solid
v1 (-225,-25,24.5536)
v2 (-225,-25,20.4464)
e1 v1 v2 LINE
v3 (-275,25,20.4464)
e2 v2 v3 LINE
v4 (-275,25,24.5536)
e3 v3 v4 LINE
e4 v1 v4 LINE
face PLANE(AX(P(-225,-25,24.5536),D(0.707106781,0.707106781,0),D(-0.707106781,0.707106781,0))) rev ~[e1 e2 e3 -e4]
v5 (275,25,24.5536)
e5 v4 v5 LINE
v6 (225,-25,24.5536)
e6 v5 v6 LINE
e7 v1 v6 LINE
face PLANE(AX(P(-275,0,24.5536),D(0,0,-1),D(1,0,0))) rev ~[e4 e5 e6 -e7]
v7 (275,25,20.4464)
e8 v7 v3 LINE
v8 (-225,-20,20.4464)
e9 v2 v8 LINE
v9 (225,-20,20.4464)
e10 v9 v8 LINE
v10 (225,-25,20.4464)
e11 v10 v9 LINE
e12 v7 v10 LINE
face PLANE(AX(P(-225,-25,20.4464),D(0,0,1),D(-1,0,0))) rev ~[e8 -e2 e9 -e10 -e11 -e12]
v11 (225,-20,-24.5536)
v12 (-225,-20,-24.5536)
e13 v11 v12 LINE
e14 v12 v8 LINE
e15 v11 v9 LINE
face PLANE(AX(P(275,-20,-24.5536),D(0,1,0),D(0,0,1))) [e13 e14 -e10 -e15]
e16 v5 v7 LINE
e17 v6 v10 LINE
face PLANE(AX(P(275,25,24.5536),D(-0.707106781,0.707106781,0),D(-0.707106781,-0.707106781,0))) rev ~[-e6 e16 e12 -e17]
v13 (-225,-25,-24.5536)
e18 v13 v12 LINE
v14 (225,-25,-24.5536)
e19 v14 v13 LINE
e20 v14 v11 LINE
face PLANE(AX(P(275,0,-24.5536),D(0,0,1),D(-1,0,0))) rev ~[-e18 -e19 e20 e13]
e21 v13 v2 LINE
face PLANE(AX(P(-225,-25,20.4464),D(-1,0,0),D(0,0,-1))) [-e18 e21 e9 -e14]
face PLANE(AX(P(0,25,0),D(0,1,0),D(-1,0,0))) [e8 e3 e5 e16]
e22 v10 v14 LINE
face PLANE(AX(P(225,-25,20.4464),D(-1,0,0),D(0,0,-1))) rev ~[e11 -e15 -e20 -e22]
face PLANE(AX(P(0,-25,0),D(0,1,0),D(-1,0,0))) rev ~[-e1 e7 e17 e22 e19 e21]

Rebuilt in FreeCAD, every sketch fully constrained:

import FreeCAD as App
import Part
import Sketcher
Q = App.Units.Quantity


def add_polygon(sketch, points):
    """Adds a closed chain of lines whose ends are joined by coincident constraints."""
    first, n = sketch.GeometryCount, len(points)
    for a, b in zip(points, points[1:] + points[:1]):
        sketch.addGeometry(Part.LineSegment(App.Vector(*a, 0), App.Vector(*b, 0)), False)
    for i in range(n):
        sketch.addConstraint(Sketcher.Constraint("Coincident", first + i, 2, first + (i + 1) % n, 1))

doc = App.newDocument("Part")
body = doc.addObject("PartDesign::Body", "Body")

# Sketch on XZ plane
sketch1 = body.newObject("Sketcher::SketchObject", "Sketch")
sketch1.AttachmentSupport = (doc.getObject("XZ_Plane"), [""])
sketch1.MapMode = "FlatFace"
add_polygon(sketch1, [(-275, -25), (-275, 25), (275, 25), (275, -25)])  # lines 0-3
sketch1.addConstraint([
    Sketcher.Constraint("Vertical", 0),
    Sketcher.Constraint("Horizontal", 1),
    Sketcher.Constraint("Vertical", 2),
    Sketcher.Constraint("Horizontal", 3),
    Sketcher.Constraint("Symmetric", 0, 2, 2, 2, -1, 1),
    Sketcher.Constraint("DistanceX", 1, 1, 1, 2, Q("550 mm")),
    Sketcher.Constraint("DistanceY", 0, 1, 0, 2, Q("49.1072 mm")),
])
pad1 = body.newObject("PartDesign::Pad", "Pad")
pad1.Profile = sketch1
pad1.Length = 50
pad1.Midplane = True

# Sketch on YZ plane
sketch2 = body.newObject("Sketcher::SketchObject", "Sketch001")
sketch2.AttachmentSupport = (doc.getObject("YZ_Plane"), [""])
sketch2.MapMode = "FlatFace"
sketch2.AttachmentOffset = App.Placement(App.Vector(0, 0, 275), App.Rotation())
add_polygon(sketch2, [(-20, 20), (-20, -25), (25, -25), (25, 20)])  # lines 0-3
sketch2.addConstraint([
    Sketcher.Constraint("Vertical", 0),
    Sketcher.Constraint("Horizontal", 1),
    Sketcher.Constraint("Vertical", 2),
    Sketcher.Constraint("Horizontal", 3),
    Sketcher.Constraint("Equal", 3, 0),
    Sketcher.Constraint("DistanceX", 1, 1, 1, 2, Q("45 mm")),
    Sketcher.Constraint("DistanceX", 0, 2, -1, 1, Q("20 mm")),
    Sketcher.Constraint("DistanceY", 0, 2, -1, 1, Q("24.5536 mm")),
])
pocket1 = body.newObject("PartDesign::Pocket", "Pocket")
pocket1.Profile = sketch2
pocket1.Type = "ThroughAll"

# Sketch on XZ plane
sketch3 = body.newObject("Sketcher::SketchObject", "Sketch002")
sketch3.AttachmentSupport = (doc.getObject("XZ_Plane"), [""])
sketch3.MapMode = "FlatFace"
sketch3.AttachmentOffset = App.Placement(App.Vector(0, 0, 25), App.Rotation())
add_polygon(sketch3, [(275, -25), (275, 20), (225, 20), (225, -25)])  # lines 0-3
add_polygon(sketch3, [(-225, -25), (-225, 20), (-275, 20), (-275, -25)])  # lines 4-7
sketch3.addConstraint([
    Sketcher.Constraint("Vertical", 0),
    Sketcher.Constraint("Horizontal", 1),
    Sketcher.Constraint("Vertical", 2),
    Sketcher.Constraint("Horizontal", 3),
    Sketcher.Constraint("Vertical", 4),
    Sketcher.Constraint("Horizontal", 5),
    Sketcher.Constraint("Vertical", 6),
    Sketcher.Constraint("Horizontal", 7),
    Sketcher.Constraint("Symmetric", 1, 2, 4, 2, -2),
    Sketcher.Constraint("Symmetric", 3, 2, 6, 2, -2),
    Sketcher.Constraint("DistanceX", 1, 2, 1, 1, Q("50 mm")),
    Sketcher.Constraint("DistanceY", 0, 1, 0, 2, Q("45 mm")),
    Sketcher.Constraint("DistanceX", -1, 1, 0, 2, Q("275 mm")),
    Sketcher.Constraint("DistanceY", -1, 1, 0, 2, Q("20.4464 mm")),
])
pocket2 = body.newObject("PartDesign::Pocket", "Pocket001")
pocket2.Profile = sketch3
pocket2.Length = 10

# Sketch on XY plane
sketch4 = body.newObject("Sketcher::SketchObject", "Sketch003")
sketch4.AttachmentSupport = (doc.getObject("XY_Plane"), [""])
sketch4.MapMode = "FlatFace"
sketch4.AttachmentOffset = App.Placement(App.Vector(0, 0, 24.5536), App.Rotation())
add_polygon(sketch4, [(-275, -25), (-225, -25), (-275, 25)])  # lines 0-2
add_polygon(sketch4, [(275, 25), (225, -25), (275, -25)])  # lines 3-5
sketch4.addConstraint([
    Sketcher.Constraint("Horizontal", 0),
    Sketcher.Constraint("Vertical", 2),
    Sketcher.Constraint("Horizontal", 4),
    Sketcher.Constraint("Vertical", 5),
    Sketcher.Constraint("Symmetric", 1, 2, 4, 2, -1, 1),
    Sketcher.Constraint("Symmetric", 0, 2, 3, 2, -2),
    Sketcher.Constraint("Perpendicular", 1, 3),
    Sketcher.Constraint("Horizontal", 1, 2, 5, 2),
    Sketcher.Constraint("DistanceX", 0, 1, 0, 2, Q("50 mm")),
    Sketcher.Constraint("DistanceX", 0, 2, -1, 1, Q("225 mm")),
])
pocket3 = body.newObject("PartDesign::Pocket", "Pocket002")
pocket3.Profile = sketch4
pocket3.Length = 5

doc.recompute()
